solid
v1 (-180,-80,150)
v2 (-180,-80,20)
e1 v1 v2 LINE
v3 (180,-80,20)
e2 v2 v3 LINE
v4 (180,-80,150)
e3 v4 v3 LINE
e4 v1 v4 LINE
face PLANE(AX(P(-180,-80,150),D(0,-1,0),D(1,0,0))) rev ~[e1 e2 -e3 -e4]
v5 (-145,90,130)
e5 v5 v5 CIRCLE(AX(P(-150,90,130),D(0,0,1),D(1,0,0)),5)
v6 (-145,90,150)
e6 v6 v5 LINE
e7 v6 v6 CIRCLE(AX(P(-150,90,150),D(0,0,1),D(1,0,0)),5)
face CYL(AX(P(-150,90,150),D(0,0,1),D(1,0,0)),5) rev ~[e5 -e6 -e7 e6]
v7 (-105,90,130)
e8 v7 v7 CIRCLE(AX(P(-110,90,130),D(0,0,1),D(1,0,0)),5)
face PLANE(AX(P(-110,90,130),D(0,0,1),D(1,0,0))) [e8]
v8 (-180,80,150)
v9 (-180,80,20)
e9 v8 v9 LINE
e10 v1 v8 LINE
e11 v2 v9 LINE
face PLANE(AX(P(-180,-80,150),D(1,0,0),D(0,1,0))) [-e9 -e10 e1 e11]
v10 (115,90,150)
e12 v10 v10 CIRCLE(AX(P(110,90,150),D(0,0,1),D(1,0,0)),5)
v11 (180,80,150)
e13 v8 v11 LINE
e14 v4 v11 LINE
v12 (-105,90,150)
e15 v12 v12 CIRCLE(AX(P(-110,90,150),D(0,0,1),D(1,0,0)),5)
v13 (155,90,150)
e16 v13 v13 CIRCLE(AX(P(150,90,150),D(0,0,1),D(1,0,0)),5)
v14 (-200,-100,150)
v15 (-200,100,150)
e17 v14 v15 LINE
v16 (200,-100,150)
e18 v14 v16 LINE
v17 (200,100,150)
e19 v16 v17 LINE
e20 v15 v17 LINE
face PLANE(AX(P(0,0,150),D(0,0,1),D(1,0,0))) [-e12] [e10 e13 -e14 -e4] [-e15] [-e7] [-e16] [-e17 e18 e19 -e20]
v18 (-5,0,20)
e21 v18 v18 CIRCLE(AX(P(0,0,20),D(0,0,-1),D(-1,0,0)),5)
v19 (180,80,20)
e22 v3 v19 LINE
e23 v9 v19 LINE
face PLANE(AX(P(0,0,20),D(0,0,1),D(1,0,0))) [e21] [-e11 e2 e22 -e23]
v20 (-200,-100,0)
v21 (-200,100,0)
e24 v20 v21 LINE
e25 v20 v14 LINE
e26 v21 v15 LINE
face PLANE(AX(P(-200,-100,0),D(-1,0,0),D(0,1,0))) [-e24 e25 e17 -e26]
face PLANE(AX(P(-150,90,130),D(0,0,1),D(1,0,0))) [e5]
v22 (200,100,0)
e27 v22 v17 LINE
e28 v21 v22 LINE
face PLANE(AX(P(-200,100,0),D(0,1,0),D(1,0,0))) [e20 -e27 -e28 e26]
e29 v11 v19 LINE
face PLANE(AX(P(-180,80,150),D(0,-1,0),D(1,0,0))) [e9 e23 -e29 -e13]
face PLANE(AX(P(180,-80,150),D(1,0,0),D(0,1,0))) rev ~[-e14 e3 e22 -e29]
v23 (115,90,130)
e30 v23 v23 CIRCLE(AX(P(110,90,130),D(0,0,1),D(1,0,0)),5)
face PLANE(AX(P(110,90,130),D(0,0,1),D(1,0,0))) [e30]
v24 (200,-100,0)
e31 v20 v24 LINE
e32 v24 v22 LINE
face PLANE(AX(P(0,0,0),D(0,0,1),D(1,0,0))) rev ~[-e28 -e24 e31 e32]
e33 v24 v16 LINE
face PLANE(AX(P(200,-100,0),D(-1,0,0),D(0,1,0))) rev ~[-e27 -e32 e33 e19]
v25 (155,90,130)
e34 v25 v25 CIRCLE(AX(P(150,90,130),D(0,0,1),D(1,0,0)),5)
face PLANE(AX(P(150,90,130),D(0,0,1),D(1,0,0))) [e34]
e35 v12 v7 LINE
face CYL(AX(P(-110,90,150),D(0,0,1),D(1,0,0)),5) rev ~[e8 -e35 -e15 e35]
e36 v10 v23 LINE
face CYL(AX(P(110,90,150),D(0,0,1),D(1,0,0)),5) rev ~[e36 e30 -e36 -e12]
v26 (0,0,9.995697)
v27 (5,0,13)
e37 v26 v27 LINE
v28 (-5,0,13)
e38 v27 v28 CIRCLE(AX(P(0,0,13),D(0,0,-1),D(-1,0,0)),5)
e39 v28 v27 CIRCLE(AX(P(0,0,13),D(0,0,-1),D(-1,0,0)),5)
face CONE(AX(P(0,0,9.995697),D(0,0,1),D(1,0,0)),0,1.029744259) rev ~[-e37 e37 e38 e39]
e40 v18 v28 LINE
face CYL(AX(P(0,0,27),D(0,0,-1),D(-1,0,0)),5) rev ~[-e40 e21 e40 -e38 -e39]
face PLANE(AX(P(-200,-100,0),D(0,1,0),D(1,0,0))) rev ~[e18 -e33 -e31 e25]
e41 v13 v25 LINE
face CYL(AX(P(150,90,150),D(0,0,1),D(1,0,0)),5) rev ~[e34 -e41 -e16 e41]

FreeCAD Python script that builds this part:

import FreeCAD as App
import Part
import Sketcher

V = App.Vector


def add_polygon(sketch, points):
    """Adds a closed chain of lines whose ends are joined by coincident constraints."""
    first, n = sketch.GeometryCount, len(points)
    for a, b in zip(points, points[1:] + points[:1]):
        sketch.addGeometry(Part.LineSegment(App.Vector(*a, 0), App.Vector(*b, 0)), False)
    for i in range(n):
        sketch.addConstraint(Sketcher.Constraint("Coincident", first + i, 2, first + (i + 1) % n, 1))

doc = App.newDocument("Part")
params = doc.addObject("Spreadsheet::Sheet", "Params")
for row, (alias, value) in enumerate([
    ("sketch1_width", "400 mm"),
    ("sketch1_height", "200 mm"),
    ("pad1_length", "150 mm"),
    ("sketch2_width", "360 mm"),
    ("sketch2_height", "160 mm"),
    ("pocket1_length", "130 mm"),
    ("sketch3_diameter", "10 mm"),
    ("pocket2_length", "20 mm"),
    ("sketch4_diameter", "10 mm"),
    ("hole_diameter", "10 mm"),
    ("hole_depth", "7 mm"),
], start=1):
    params.set(f"A{row}", alias)
    params.set(f"B{row}", "=" + value)
    params.setAlias(f"B{row}", alias)

body = doc.addObject("PartDesign::Body", "Body")

# Sketch on XY plane
sketch1 = body.newObject("Sketcher::SketchObject", "Sketch")
sketch1.AttachmentSupport = (doc.getObject("XY_Plane"), [""])
sketch1.MapMode = "FlatFace"
add_polygon(sketch1, [(-200, 100), (-200, -100), (200, -100), (200, 100)])  # lines 0-3
sketch1.addConstraint(Sketcher.Constraint("Vertical", 0))
sketch1.addConstraint(Sketcher.Constraint("Horizontal", 1))
sketch1.addConstraint(Sketcher.Constraint("Vertical", 2))
sketch1.addConstraint(Sketcher.Constraint("Horizontal", 3))
sketch1.addConstraint(Sketcher.Constraint("Symmetric", 0, 2, 2, 2, -1, 1))
sketch1.addConstraint(Sketcher.Constraint("DistanceX", 1, 1, 1, 2, 400.0))
sketch1.addConstraint(Sketcher.Constraint("DistanceY", 0, 2, 0, 1, 200.0))
sketch1.setExpression("Constraints[9]", "Params.sketch1_width")
sketch1.setExpression("Constraints[10]", "Params.sketch1_height")
pad1 = body.newObject("PartDesign::Pad", "Pad")
pad1.Profile = sketch1
pad1.setExpression("Length", "Params.pad1_length")

# Sketch on XY plane
sketch2 = body.newObject("Sketcher::SketchObject", "Sketch001")
sketch2.AttachmentSupport = (doc.getObject("XY_Plane"), [""])
sketch2.MapMode = "FlatFace"
sketch2.AttachmentOffset = App.Placement(V(0, 0, 150), App.Rotation())
add_polygon(sketch2, [(-180, 80), (-180, -80), (180, -80), (180, 80)])  # lines 0-3
sketch2.addConstraint(Sketcher.Constraint("Vertical", 0))
sketch2.addConstraint(Sketcher.Constraint("Horizontal", 1))
sketch2.addConstraint(Sketcher.Constraint("Vertical", 2))
sketch2.addConstraint(Sketcher.Constraint("Horizontal", 3))
sketch2.addConstraint(Sketcher.Constraint("Symmetric", 0, 2, 2, 2, -1, 1))
sketch2.addConstraint(Sketcher.Constraint("DistanceX", 1, 1, 1, 2, 360.0))
sketch2.addConstraint(Sketcher.Constraint("DistanceY", 0, 2, 0, 1, 160.0))
sketch2.setExpression("Constraints[9]", "Params.sketch2_width")
sketch2.setExpression("Constraints[10]", "Params.sketch2_height")
pocket1 = body.newObject("PartDesign::Pocket", "Pocket")
pocket1.Profile = sketch2
pocket1.setExpression("Length", "Params.pocket1_length")

# Sketch on XY plane
sketch3 = body.newObject("Sketcher::SketchObject", "Sketch002")
sketch3.AttachmentSupport = (doc.getObject("XY_Plane"), [""])
sketch3.MapMode = "FlatFace"
sketch3.AttachmentOffset = App.Placement(V(0, 0, 150), App.Rotation())
sketch3.addGeometry(Part.Circle(V(-150, 90, 0), V(0, 0, 1), 5), False)
sketch3.addGeometry(Part.Circle(V(-110, 90, 0), V(0, 0, 1), 5), False)
sketch3.addGeometry(Part.Circle(V(110, 90, 0), V(0, 0, 1), 5), False)
sketch3.addGeometry(Part.Circle(V(150, 90, 0), V(0, 0, 1), 5), False)
sketch3.addConstraint(Sketcher.Constraint("Equal", 0, 1))
sketch3.addConstraint(Sketcher.Constraint("Equal", 1, 2))
sketch3.addConstraint(Sketcher.Constraint("Equal", 2, 3))
sketch3.addConstraint(Sketcher.Constraint("Symmetric", 1, 3, 2, 3, -2))
sketch3.addConstraint(Sketcher.Constraint("Symmetric", 0, 3, 3, 3, -2))
sketch3.addConstraint(Sketcher.Constraint("Horizontal", 0, 3, 1, 3))
sketch3.addConstraint(Sketcher.Constraint("Diameter", 0, 10.0))
sketch3.addConstraint(Sketcher.Constraint("DistanceX", 0, 3, -1, 1, 150.0))
sketch3.addConstraint(Sketcher.Constraint("DistanceY", -1, 1, 0, 3, 90.0))
sketch3.addConstraint(Sketcher.Constraint("DistanceX", 1, 3, -1, 1, 110.0))
sketch3.setExpression("Constraints[6]", "Params.sketch3_diameter")
pocket2 = body.newObject("PartDesign::Pocket", "Pocket001")
pocket2.Profile = sketch3
pocket2.setExpression("Length", "Params.pocket2_length")

# Sketch on XY plane
sketch4 = body.newObject("Sketcher::SketchObject", "Sketch003")
sketch4.AttachmentSupport = (doc.getObject("XY_Plane"), [""])
sketch4.MapMode = "FlatFace"
sketch4.AttachmentOffset = App.Placement(V(0, 0, 20), App.Rotation())
sketch4.addGeometry(Part.Circle(V(0, 0, 0), V(0, 0, 1), 5), False)
sketch4.addConstraint(Sketcher.Constraint("Coincident", 0, 3, -1, 1))
sketch4.addConstraint(Sketcher.Constraint("Diameter", 0, 10.0))
sketch4.setExpression("Constraints[1]", "Params.sketch4_diameter")
doc.recompute()
hole = body.newObject("PartDesign::Hole", "Hole")
hole.Profile = sketch4
hole.ThreadType = "None"
hole.setExpression("Diameter", "Params.hole_diameter")
hole.DepthType = "Dimension"
hole.setExpression("Depth", "Params.hole_depth")
hole.DrillPoint = "Angled"
hole.DrillPointAngle = 118

doc.recompute()
